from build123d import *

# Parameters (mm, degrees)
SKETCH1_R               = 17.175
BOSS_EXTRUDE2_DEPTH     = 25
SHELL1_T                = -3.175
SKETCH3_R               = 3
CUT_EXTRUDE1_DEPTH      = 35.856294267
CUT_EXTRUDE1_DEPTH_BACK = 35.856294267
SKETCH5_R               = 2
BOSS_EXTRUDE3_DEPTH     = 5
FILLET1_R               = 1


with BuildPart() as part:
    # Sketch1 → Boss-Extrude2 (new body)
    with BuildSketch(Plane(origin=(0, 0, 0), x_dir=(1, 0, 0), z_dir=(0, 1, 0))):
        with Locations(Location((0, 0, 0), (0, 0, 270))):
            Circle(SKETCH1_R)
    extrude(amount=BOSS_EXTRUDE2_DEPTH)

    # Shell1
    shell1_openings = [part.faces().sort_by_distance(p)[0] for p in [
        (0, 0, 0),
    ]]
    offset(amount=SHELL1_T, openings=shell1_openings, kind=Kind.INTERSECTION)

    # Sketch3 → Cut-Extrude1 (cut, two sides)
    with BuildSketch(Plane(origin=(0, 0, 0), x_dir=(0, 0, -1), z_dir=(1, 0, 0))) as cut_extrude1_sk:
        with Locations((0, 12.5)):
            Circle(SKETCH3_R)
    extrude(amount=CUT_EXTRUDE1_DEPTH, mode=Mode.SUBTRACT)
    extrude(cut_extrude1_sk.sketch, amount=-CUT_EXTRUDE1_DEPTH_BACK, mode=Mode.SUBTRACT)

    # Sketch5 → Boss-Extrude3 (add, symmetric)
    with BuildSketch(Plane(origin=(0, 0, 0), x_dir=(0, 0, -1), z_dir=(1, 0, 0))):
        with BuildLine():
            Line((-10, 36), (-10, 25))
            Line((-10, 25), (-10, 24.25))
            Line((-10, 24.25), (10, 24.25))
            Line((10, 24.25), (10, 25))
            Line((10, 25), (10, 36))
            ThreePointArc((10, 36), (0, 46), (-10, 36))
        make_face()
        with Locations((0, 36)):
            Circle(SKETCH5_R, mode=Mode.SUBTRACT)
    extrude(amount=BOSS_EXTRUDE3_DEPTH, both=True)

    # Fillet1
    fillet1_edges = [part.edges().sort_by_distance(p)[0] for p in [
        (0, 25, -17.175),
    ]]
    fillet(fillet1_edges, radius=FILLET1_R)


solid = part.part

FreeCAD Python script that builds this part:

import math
import FreeCAD as App
import Part
import Sketcher
Q = App.Units.Quantity


def edges_at(feature, points):
    """Names of the edges that pass closest to the given points."""
    edges = feature.Shape.Edges
    near = lambda p: min(range(len(edges)), key=lambda i: edges[i].distToShape(Part.Vertex(*p))[0])
    return sorted({f"Edge{near(p) + 1}" for p in points})


def faces_at(feature, points):
    """Names of the faces that lie closest to the given points."""
    faces = feature.Shape.Faces
    near = lambda p: min(range(len(faces)), key=lambda i: faces[i].distToShape(Part.Vertex(*p))[0])
    return sorted({f"Face{near(p) + 1}" for p in points})

doc = App.newDocument("Part")
body = doc.addObject("PartDesign::Body", "Body")

sketch1 = doc.addObject("Sketcher::SketchObject", "Sketch")
body.addObject(sketch1)
sketch1.AttachmentSupport = (doc.XZ_Plane, [""])
sketch1.MapMode = "FlatFace"
sketch1.addGeometry(Part.Circle(App.Vector(0, 0, 0), App.Vector(0, 0, 1), 17), False)
sketch1.addConstraint(Sketcher.Constraint("Coincident", 0, 3, -1, 1))
sketch1.addConstraint(Sketcher.Constraint("Diameter", 0, Q("34.35 mm")))
pad1 = doc.addObject("PartDesign::Pad", "Pad")
body.addObject(pad1)
pad1.Profile = sketch1
pad1.Length = 25
pad1.Reversed = True
doc.recompute()

thickness = doc.addObject("PartDesign::Thickness", "Thickness")
body.addObject(thickness)
thickness.Base = (pad1, faces_at(pad1, [(0, 0, 0)]))
thickness.Value = 3.175
thickness.Reversed = True
thickness.Join = "Intersection"

sketch2 = doc.addObject("Sketcher::SketchObject", "Sketch001")
body.addObject(sketch2)
sketch2.AttachmentSupport = (doc.YZ_Plane, [""])
sketch2.MapMode = "FlatFace"
sketch2.addGeometry(Part.Circle(App.Vector(12.5, 0, 0), App.Vector(0, 0, 1), 3), False)
sketch2.addConstraint(Sketcher.Constraint("PointOnObject", 0, 3, -1))
sketch2.addConstraint(Sketcher.Constraint("Diameter", 0, Q("6 mm")))
sketch2.addConstraint(Sketcher.Constraint("DistanceX", -1, 1, 0, 3, Q("12.5 mm")))
pocket1 = doc.addObject("PartDesign::Pocket", "Pocket")
body.addObject(pocket1)
pocket1.Profile = sketch2
pocket1.Type = "ThroughAll"
pocket1.Midplane = True

sketch3 = doc.addObject("Sketcher::SketchObject", "Sketch002")
body.addObject(sketch3)
sketch3.AttachmentSupport = (doc.YZ_Plane, [""])
sketch3.MapMode = "FlatFace"
sketch3.addGeometry(Part.LineSegment(App.Vector(36, 10, 0), App.Vector(24.2, 10, 0)), False)
sketch3.addGeometry(Part.LineSegment(App.Vector(24.2, 10, 0), App.Vector(24.2, -10, 0)), False)
sketch3.addGeometry(Part.LineSegment(App.Vector(24.2, -10, 0), App.Vector(36, -10, 0)), False)
sketch3.addGeometry(Part.ArcOfCircle(Part.Circle(App.Vector(36, 0, 0), App.Vector(0, 0, 1), 10), math.radians(-90), math.radians(90)), False)
sketch3.addGeometry(Part.Circle(App.Vector(36, 0, 0), App.Vector(0, 0, 1), 2), False)
sketch3.addConstraint(Sketcher.Constraint("Coincident", 0, 2, 1, 1))
sketch3.addConstraint(Sketcher.Constraint("Coincident", 1, 2, 2, 1))
sketch3.addConstraint(Sketcher.Constraint("Tangent", 2, 2, 3, 1))
sketch3.addConstraint(Sketcher.Constraint("Tangent", 3, 2, 0, 1))
sketch3.addConstraint(Sketcher.Constraint("Horizontal", 0))
sketch3.addConstraint(Sketcher.Constraint("Vertical", 1))
sketch3.addConstraint(Sketcher.Constraint("Horizontal", 2))
sketch3.addConstraint(Sketcher.Constraint("Coincident", 4, 3, 3, 3))
sketch3.addConstraint(Sketcher.Constraint("PointOnObject", 3, 3, -1))
sketch3.addConstraint(Sketcher.Constraint("Diameter", 4, Q("4 mm")))
sketch3.addConstraint(Sketcher.Constraint("Radius", 3, Q("10 mm")))
sketch3.addConstraint(Sketcher.Constraint("DistanceX", -1, 1, 3, 3, Q("36 mm")))
sketch3.addConstraint(Sketcher.Constraint("DistanceX", 0, 2, 0, 1, Q("11.75 mm")))
pad2 = doc.addObject("PartDesign::Pad", "Pad001")
body.addObject(pad2)
pad2.Profile = sketch3
pad2.Length = 10
pad2.Midplane = True
doc.recompute()

fillet = doc.addObject("PartDesign::Fillet", "Fillet")
body.addObject(fillet)
fillet.Base = (pad2, edges_at(pad2, [(0, 25, -17.175)]))
fillet.Radius = 1

doc.recompute()
